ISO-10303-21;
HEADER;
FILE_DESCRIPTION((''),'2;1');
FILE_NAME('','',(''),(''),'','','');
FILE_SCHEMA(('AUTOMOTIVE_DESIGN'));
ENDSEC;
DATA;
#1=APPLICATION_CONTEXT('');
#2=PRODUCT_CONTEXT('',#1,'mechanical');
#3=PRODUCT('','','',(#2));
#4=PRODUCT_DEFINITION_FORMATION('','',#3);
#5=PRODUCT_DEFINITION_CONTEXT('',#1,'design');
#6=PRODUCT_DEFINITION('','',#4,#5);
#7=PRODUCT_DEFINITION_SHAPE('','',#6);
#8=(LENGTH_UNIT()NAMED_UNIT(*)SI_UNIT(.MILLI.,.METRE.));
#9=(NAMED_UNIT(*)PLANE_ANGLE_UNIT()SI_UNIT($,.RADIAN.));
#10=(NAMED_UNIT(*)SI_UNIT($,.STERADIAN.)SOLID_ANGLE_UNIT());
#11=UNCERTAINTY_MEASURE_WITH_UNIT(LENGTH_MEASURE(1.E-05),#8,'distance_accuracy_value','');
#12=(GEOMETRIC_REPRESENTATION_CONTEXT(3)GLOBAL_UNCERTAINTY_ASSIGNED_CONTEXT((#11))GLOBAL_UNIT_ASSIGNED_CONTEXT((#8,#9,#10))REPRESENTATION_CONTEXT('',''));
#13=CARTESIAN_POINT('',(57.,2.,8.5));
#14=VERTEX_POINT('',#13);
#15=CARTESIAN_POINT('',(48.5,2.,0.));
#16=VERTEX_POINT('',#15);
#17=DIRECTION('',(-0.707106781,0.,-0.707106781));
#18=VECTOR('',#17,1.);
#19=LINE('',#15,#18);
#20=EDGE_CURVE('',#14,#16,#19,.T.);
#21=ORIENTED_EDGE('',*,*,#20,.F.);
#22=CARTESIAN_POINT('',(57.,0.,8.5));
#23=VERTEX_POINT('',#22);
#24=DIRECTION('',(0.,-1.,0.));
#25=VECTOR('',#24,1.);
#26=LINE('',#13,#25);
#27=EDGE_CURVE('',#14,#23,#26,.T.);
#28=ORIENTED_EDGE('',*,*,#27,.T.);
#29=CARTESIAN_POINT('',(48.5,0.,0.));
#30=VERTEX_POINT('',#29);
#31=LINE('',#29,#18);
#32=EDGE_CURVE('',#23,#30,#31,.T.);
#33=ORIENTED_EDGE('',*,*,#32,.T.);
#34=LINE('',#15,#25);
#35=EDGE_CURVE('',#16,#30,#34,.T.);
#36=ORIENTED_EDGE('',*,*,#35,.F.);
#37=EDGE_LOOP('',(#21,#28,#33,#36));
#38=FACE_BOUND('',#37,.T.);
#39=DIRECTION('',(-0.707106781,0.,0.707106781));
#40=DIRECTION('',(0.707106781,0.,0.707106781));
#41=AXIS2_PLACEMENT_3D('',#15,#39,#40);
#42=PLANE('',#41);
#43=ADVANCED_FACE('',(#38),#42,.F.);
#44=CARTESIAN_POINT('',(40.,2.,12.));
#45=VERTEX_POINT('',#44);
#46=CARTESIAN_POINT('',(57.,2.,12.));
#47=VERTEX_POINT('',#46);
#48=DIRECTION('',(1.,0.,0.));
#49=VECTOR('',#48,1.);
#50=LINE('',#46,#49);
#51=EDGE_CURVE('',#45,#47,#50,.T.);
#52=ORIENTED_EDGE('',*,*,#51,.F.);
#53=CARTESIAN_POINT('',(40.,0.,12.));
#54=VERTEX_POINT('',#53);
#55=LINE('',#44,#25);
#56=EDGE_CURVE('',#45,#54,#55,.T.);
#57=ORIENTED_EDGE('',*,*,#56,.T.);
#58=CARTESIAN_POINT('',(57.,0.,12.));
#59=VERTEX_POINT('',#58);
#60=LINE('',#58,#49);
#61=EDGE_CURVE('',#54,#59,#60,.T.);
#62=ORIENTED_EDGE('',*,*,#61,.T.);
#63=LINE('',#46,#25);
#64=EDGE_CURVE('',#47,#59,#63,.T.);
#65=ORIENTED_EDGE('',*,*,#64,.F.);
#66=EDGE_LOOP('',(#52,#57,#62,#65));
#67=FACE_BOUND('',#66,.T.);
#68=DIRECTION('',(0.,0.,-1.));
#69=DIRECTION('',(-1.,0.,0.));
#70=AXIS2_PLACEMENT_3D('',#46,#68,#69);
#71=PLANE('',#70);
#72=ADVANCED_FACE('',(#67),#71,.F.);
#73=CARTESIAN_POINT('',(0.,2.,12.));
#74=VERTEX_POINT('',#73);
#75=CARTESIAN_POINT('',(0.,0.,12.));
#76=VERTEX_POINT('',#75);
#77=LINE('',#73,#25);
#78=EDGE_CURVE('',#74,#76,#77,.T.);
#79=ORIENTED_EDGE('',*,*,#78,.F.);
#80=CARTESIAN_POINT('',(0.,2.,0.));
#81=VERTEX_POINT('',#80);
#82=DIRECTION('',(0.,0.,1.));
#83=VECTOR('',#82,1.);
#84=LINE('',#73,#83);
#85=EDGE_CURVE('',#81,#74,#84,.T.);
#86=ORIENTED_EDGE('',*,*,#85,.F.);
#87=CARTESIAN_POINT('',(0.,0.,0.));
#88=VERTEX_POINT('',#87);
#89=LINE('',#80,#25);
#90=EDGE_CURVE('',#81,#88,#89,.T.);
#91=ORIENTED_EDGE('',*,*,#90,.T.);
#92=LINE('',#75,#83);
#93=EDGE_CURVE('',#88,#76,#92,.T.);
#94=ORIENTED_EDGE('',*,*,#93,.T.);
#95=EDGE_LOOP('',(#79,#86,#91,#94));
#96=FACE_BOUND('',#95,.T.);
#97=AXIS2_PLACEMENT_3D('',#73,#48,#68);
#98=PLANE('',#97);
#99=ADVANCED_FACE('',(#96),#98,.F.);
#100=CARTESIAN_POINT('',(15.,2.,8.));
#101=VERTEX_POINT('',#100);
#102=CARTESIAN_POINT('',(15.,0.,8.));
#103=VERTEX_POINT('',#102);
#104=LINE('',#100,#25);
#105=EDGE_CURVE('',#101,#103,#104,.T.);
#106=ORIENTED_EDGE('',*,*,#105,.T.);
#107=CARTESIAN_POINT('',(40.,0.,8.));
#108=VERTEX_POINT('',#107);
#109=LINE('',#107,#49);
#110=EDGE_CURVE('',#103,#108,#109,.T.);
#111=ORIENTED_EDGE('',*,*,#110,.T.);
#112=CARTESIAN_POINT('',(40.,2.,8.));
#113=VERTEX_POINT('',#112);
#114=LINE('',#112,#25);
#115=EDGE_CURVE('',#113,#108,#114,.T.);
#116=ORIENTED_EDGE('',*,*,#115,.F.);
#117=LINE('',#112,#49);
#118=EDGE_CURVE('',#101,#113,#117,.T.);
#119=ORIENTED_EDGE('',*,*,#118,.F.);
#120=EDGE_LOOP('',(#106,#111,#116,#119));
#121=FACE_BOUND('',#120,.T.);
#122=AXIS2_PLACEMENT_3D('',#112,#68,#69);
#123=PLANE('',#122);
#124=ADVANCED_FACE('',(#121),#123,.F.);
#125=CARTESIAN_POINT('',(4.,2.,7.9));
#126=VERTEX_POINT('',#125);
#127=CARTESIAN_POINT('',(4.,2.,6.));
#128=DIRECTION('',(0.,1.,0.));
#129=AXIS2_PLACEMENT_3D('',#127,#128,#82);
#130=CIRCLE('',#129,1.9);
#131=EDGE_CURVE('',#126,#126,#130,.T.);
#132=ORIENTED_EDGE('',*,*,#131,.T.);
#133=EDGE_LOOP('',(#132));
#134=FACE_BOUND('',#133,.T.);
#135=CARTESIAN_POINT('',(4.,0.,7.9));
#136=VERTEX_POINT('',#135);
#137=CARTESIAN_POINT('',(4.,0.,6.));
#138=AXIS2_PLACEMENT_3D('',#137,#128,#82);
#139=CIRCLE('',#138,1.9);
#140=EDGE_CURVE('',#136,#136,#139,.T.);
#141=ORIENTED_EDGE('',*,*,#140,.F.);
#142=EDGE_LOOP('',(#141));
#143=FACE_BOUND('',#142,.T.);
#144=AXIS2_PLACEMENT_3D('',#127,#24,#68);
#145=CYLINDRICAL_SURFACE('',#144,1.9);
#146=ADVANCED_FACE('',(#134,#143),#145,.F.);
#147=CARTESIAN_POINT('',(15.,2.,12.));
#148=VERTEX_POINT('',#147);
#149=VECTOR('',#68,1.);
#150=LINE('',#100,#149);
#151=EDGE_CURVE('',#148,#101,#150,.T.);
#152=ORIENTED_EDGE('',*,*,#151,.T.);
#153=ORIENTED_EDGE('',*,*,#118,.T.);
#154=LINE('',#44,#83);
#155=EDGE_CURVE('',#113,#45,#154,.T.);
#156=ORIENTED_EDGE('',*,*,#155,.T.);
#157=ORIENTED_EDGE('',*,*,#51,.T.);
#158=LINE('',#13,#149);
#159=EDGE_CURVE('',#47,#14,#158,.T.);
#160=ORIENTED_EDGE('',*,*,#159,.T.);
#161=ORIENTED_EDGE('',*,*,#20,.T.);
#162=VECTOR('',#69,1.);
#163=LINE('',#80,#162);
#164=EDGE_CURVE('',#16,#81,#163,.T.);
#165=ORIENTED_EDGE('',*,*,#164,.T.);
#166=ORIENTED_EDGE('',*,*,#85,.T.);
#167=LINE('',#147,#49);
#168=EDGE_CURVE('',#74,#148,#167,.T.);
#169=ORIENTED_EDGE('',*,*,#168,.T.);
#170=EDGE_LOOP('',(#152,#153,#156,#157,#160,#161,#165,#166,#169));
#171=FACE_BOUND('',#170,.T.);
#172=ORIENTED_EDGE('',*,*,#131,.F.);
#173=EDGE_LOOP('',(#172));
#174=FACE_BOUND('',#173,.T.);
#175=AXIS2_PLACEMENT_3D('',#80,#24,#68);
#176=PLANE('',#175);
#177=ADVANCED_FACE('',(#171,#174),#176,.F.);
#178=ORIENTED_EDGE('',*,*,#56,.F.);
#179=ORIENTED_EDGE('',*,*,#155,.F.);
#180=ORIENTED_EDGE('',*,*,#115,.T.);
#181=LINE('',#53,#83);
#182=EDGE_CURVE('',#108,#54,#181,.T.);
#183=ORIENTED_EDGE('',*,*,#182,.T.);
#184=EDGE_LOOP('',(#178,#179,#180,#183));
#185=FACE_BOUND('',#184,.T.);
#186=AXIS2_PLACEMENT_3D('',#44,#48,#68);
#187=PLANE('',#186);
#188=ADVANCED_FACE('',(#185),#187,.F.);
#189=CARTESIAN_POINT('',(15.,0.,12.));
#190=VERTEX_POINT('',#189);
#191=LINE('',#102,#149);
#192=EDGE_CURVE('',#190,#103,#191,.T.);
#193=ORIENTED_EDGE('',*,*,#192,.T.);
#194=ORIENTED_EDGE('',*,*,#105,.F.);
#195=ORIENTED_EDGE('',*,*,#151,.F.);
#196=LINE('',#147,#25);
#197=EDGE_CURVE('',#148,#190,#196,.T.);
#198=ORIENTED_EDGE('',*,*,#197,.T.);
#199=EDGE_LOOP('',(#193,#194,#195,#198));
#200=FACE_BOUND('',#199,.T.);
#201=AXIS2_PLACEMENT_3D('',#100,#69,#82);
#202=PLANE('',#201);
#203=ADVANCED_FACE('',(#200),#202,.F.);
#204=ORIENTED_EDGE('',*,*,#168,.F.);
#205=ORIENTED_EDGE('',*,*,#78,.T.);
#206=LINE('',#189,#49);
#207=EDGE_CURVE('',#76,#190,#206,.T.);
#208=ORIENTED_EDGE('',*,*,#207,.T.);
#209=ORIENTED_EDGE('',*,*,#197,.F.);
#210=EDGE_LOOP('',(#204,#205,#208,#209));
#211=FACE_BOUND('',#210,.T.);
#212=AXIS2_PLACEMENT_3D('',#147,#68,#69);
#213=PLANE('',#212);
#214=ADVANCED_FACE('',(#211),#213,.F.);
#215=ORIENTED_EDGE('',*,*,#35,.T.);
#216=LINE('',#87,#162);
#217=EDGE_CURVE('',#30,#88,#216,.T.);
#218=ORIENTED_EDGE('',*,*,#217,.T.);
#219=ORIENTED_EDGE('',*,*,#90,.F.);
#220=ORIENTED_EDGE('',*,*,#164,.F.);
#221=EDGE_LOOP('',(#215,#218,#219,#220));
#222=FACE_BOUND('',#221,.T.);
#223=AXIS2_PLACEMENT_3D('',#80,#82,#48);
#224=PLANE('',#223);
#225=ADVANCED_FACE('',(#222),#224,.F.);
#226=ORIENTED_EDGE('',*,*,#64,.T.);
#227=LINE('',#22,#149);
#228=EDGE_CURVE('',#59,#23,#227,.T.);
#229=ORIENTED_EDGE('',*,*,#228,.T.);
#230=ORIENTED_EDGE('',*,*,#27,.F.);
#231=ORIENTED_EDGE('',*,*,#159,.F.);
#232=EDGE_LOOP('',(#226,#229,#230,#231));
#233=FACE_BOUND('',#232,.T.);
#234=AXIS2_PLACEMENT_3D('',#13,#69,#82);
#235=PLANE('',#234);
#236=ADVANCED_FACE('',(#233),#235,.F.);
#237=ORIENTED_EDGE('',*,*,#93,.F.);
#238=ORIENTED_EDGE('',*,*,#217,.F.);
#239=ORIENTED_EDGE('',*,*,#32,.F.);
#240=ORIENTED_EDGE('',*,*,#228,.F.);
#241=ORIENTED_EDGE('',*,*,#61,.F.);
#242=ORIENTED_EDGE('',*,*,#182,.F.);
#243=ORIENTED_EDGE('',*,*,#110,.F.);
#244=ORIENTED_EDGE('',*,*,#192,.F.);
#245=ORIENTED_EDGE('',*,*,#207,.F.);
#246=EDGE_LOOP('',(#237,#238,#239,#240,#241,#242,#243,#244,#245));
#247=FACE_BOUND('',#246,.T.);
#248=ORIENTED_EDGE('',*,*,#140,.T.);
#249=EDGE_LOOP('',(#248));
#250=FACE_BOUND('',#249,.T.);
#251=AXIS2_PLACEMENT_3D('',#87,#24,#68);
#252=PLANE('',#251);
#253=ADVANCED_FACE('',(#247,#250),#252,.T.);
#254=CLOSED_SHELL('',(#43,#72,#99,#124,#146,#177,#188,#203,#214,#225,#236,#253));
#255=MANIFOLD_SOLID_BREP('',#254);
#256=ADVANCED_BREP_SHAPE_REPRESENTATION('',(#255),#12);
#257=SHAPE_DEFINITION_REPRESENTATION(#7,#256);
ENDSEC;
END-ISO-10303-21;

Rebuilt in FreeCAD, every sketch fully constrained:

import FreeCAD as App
import Part
import Sketcher
from FreeCAD import Vector
Q = App.Units.Quantity


def add_polygon(sketch, points):
    """Adds a closed chain of lines whose ends are joined by coincident constraints."""
    first, n = sketch.GeometryCount, len(points)
    for a, b in zip(points, points[1:] + points[:1]):
        sketch.addGeometry(Part.LineSegment(App.Vector(*a, 0), App.Vector(*b, 0)), False)
    for i in range(n):
        sketch.addConstraint(Sketcher.Constraint("Coincident", first + i, 2, first + (i + 1) % n, 1))

doc = App.newDocument("Part")
body = doc.addObject("PartDesign::Body", "Body")

# Sketch on XZ plane
sketch1 = doc.addObject("Sketcher::SketchObject", "Sketch")
body.addObject(sketch1)
sketch1.AttachmentSupport = (doc.XZ_Plane, [""])
sketch1.MapMode = "FlatFace"
add_polygon(sketch1, [(48.5, 0), (0, 0), (0, 12), (15, 12), (15, 8), (40, 8), (40, 12), (57, 12), (57, 8.5)])  # lines 0-8
sketch1.addGeometry(Part.Circle(Vector(4, 6, 0), Vector(0, 0, 1), 1.9), False)  # 9
sketch1.addConstraint([
    Sketcher.Constraint("Horizontal", 0),
    Sketcher.Constraint("Vertical", 1),
    Sketcher.Constraint("Horizontal", 2),
    Sketcher.Constraint("Vertical", 3),
    Sketcher.Constraint("Horizontal", 4),
    Sketcher.Constraint("Vertical", 5),
    Sketcher.Constraint("Horizontal", 6),
    Sketcher.Constraint("Vertical", 7),
    Sketcher.Constraint("Coincident", 0, 2, -1, 1),
    Sketcher.Constraint("Horizontal", 2, 2, 5, 2),
    Sketcher.Constraint("Diameter", 9, 3.8),
    Sketcher.Constraint("DistanceX", 2, 1, 2, 2, 15.0),
    Sketcher.Constraint("DistanceX", 4, 1, 4, 2, 25.0),
    Sketcher.Constraint("DistanceX", 6, 1, 6, 2, 17.0),
    Sketcher.Constraint("DistanceY", 1, 1, 1, 2, 12.0),
    Sketcher.Constraint("DistanceY", 3, 2, 3, 1, 4.0),
    Sketcher.Constraint("Angle", 8, Q("-135 deg")),
    Sketcher.Constraint("DistanceX", 0, 2, 0, 1, 48.5),
    Sketcher.Constraint("DistanceX", -1, 1, 9, 3, 4.0),
    Sketcher.Constraint("DistanceY", -1, 1, 9, 3, 6.0),
])
pad1 = doc.addObject("PartDesign::Pad", "Pad")
body.addObject(pad1)
pad1.Profile = sketch1
pad1.Length = 2
pad1.Reversed = True

doc.recompute()
